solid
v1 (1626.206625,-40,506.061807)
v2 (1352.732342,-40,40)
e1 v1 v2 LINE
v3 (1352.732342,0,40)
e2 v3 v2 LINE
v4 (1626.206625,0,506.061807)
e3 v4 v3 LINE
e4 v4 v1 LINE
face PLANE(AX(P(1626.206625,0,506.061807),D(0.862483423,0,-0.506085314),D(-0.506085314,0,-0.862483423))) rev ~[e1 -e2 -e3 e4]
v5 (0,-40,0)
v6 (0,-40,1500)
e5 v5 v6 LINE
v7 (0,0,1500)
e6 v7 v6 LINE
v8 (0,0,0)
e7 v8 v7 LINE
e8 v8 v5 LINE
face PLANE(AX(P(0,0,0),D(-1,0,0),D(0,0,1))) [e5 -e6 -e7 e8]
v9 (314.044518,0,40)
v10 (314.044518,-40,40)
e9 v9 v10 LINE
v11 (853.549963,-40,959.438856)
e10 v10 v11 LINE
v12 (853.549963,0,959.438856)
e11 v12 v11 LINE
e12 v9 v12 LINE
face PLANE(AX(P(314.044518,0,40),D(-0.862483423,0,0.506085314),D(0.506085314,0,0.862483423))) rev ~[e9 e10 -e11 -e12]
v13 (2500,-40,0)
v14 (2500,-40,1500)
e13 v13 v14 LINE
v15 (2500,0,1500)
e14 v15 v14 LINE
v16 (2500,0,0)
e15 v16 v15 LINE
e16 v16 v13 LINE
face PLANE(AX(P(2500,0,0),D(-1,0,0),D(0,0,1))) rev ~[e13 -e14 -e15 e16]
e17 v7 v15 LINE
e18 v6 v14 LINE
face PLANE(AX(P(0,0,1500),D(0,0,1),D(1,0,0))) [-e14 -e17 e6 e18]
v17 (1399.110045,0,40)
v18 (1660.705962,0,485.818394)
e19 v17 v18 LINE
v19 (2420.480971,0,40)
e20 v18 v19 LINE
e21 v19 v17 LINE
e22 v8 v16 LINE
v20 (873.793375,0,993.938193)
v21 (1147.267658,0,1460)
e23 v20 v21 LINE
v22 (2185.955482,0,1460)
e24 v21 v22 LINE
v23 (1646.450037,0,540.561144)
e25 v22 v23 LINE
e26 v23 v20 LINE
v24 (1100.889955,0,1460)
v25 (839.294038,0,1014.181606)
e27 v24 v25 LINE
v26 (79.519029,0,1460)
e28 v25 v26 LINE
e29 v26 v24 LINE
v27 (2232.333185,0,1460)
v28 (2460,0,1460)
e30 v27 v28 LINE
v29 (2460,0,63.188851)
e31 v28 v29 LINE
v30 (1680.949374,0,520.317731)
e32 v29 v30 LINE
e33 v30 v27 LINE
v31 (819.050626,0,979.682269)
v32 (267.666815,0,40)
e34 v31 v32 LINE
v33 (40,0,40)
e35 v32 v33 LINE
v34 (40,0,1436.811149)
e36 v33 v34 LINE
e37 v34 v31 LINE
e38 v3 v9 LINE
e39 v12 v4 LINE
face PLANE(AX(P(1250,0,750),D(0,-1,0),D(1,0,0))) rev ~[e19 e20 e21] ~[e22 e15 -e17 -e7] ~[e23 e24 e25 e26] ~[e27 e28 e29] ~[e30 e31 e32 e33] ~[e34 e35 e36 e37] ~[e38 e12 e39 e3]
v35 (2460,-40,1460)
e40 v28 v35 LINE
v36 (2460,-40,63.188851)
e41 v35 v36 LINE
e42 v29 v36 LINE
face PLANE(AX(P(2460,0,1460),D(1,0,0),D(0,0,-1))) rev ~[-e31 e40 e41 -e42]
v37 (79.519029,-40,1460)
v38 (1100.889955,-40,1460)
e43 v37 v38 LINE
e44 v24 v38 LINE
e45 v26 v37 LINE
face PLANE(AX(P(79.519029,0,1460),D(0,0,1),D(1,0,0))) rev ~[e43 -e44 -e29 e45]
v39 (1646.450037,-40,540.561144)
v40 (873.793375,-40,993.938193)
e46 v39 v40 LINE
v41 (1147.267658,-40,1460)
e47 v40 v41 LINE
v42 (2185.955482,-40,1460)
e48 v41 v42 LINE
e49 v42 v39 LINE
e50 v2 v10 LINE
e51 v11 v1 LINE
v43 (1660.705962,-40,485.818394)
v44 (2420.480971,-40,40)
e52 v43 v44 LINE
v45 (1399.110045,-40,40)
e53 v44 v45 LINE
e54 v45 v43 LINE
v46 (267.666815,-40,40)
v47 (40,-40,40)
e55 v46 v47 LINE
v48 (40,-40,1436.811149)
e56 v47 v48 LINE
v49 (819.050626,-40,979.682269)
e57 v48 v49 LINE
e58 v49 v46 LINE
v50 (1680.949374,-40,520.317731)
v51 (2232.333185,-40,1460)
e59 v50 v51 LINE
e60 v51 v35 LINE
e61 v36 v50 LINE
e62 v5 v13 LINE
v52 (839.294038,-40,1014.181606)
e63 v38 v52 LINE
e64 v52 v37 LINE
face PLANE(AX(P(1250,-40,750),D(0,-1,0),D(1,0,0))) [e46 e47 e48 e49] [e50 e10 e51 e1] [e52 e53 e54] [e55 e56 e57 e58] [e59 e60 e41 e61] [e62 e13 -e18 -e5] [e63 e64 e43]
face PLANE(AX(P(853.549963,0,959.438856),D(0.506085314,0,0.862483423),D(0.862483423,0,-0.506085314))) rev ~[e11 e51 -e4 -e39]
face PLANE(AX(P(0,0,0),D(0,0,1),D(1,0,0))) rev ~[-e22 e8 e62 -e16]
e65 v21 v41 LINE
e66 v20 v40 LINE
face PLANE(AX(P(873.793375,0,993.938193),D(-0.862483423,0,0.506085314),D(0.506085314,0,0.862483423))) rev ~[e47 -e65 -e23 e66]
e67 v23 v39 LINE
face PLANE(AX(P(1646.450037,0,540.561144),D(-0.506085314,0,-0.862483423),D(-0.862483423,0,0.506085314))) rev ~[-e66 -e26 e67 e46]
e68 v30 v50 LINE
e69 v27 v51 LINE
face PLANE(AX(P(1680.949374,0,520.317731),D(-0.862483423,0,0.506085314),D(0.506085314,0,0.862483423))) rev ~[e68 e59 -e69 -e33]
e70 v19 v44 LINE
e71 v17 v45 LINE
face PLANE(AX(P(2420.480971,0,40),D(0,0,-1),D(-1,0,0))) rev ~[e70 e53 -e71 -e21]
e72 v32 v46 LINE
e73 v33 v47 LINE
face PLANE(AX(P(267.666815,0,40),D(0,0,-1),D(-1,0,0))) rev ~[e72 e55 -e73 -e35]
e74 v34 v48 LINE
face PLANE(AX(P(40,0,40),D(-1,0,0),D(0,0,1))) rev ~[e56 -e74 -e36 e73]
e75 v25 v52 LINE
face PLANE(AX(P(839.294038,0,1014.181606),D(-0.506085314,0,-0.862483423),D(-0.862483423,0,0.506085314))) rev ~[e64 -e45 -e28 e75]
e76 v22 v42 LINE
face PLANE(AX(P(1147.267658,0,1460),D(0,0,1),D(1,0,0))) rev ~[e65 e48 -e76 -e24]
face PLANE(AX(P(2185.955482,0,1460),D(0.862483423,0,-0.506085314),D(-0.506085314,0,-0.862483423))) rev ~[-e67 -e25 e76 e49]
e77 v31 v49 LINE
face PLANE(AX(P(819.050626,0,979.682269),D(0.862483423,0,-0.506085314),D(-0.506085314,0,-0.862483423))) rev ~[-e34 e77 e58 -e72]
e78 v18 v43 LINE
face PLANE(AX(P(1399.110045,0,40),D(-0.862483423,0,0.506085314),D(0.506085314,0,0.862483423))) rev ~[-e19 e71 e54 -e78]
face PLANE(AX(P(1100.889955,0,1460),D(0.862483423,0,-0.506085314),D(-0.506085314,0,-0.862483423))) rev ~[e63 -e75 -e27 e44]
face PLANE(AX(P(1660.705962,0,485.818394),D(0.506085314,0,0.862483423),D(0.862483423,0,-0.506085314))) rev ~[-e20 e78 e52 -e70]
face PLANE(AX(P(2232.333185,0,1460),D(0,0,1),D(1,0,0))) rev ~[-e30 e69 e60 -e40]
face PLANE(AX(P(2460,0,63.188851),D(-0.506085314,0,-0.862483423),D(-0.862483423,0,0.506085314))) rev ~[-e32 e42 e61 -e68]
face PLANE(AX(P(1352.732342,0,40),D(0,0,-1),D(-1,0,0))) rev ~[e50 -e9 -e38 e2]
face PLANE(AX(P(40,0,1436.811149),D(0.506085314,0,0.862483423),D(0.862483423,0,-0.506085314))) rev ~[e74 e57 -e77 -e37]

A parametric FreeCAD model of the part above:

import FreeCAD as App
import Part
import Sketcher
from FreeCAD import Vector

doc = App.newDocument("Part")
params = doc.addObject("Spreadsheet::Sheet", "Params")
for row, (alias, value) in enumerate([
    ("sketch1_width", "2500 mm"),
    ("sketch1_height", "1500 mm"),
    ("pad1_length", "40 mm"),
], start=1):
    params.set(f"A{row}", alias)
    params.set(f"B{row}", "=" + value)
    params.setAlias(f"B{row}", alias)

body = doc.addObject("PartDesign::Body", "Body")

# Sketch on XZ plane
sketch1 = doc.addObject("Sketcher::SketchObject", "Sketch")
body.addObject(sketch1)
sketch1.AttachmentSupport = (doc.XZ_Plane, [""])
sketch1.MapMode = "FlatFace"
sketch1.addGeometry(Part.LineSegment(Vector(0, 1500, 0), Vector(0, 0, 0)), False)
sketch1.addGeometry(Part.LineSegment(Vector(0, 0, 0), Vector(2500, 0, 0)), False)
sketch1.addGeometry(Part.LineSegment(Vector(2500, 0, 0), Vector(2500, 1500, 0)), False)
sketch1.addGeometry(Part.LineSegment(Vector(2500, 1500, 0), Vector(0, 1500, 0)), False)
sketch1.addGeometry(Part.LineSegment(Vector(40, 1436.811149, 0), Vector(819.050626, 979.682269, 0)), False)
sketch1.addGeometry(Part.LineSegment(Vector(819.050626, 979.682269, 0), Vector(267.666815, 40, 0)), False)
sketch1.addGeometry(Part.LineSegment(Vector(267.666815, 40, 0), Vector(40, 40, 0)), False)
sketch1.addGeometry(Part.LineSegment(Vector(40, 40, 0), Vector(40, 1436.811149, 0)), False)
sketch1.addGeometry(Part.LineSegment(Vector(853.549963, 959.438856, 0), Vector(1626.206625, 506.061807, 0)), False)
sketch1.addGeometry(Part.LineSegment(Vector(1626.206625, 506.061807, 0), Vector(1352.732342, 40, 0)), False)
sketch1.addGeometry(Part.LineSegment(Vector(1352.732342, 40, 0), Vector(314.044518, 40, 0)), False)
sketch1.addGeometry(Part.LineSegment(Vector(314.044518, 40, 0), Vector(853.549963, 959.438856, 0)), False)
sketch1.addGeometry(Part.LineSegment(Vector(1660.705962, 485.818394, 0), Vector(2420.480971, 40, 0)), False)
sketch1.addGeometry(Part.LineSegment(Vector(2420.480971, 40, 0), Vector(1399.110045, 40, 0)), False)
sketch1.addGeometry(Part.LineSegment(Vector(1399.110045, 40, 0), Vector(1660.705962, 485.818394, 0)), False)
sketch1.addGeometry(Part.LineSegment(Vector(839.294038, 1014.181606, 0), Vector(79.519029, 1460, 0)), False)
sketch1.addGeometry(Part.LineSegment(Vector(79.519029, 1460, 0), Vector(1100.889955, 1460, 0)), False)
sketch1.addGeometry(Part.LineSegment(Vector(1100.889955, 1460, 0), Vector(839.294038, 1014.181606, 0)), False)
sketch1.addGeometry(Part.LineSegment(Vector(2185.955482, 1460, 0), Vector(1646.450037, 540.561144, 0)), False)
sketch1.addGeometry(Part.LineSegment(Vector(1646.450037, 540.561144, 0), Vector(873.793375, 993.938193, 0)), False)
sketch1.addGeometry(Part.LineSegment(Vector(873.793375, 993.938193, 0), Vector(1147.267658, 1460, 0)), False)
sketch1.addGeometry(Part.LineSegment(Vector(1147.267658, 1460, 0), Vector(2185.955482, 1460, 0)), False)
sketch1.addGeometry(Part.LineSegment(Vector(2460, 63.188851, 0), Vector(1680.949374, 520.317731, 0)), False)
sketch1.addGeometry(Part.LineSegment(Vector(1680.949374, 520.317731, 0), Vector(2232.333185, 1460, 0)), False)
sketch1.addGeometry(Part.LineSegment(Vector(2232.333185, 1460, 0), Vector(2460, 1460, 0)), False)
sketch1.addGeometry(Part.LineSegment(Vector(2460, 1460, 0), Vector(2460, 63.188851, 0)), False)
sketch1.addConstraint(Sketcher.Constraint("Coincident", 0, 2, 1, 1))
sketch1.addConstraint(Sketcher.Constraint("Coincident", 1, 2, 2, 1))
sketch1.addConstraint(Sketcher.Constraint("Coincident", 2, 2, 3, 1))
sketch1.addConstraint(Sketcher.Constraint("Coincident", 3, 2, 0, 1))
sketch1.addConstraint(Sketcher.Constraint("Coincident", 4, 2, 5, 1))
sketch1.addConstraint(Sketcher.Constraint("Coincident", 5, 2, 6, 1))
sketch1.addConstraint(Sketcher.Constraint("Coincident", 6, 2, 7, 1))
sketch1.addConstraint(Sketcher.Constraint("Coincident", 7, 2, 4, 1))
sketch1.addConstraint(Sketcher.Constraint("Coincident", 8, 2, 9, 1))
sketch1.addConstraint(Sketcher.Constraint("Coincident", 9, 2, 10, 1))
sketch1.addConstraint(Sketcher.Constraint("Coincident", 10, 2, 11, 1))
sketch1.addConstraint(Sketcher.Constraint("Coincident", 11, 2, 8, 1))
sketch1.addConstraint(Sketcher.Constraint("Coincident", 12, 2, 13, 1))
sketch1.addConstraint(Sketcher.Constraint("Coincident", 13, 2, 14, 1))
sketch1.addConstraint(Sketcher.Constraint("Coincident", 14, 2, 12, 1))
sketch1.addConstraint(Sketcher.Constraint("Coincident", 15, 2, 16, 1))
sketch1.addConstraint(Sketcher.Constraint("Coincident", 16, 2, 17, 1))
sketch1.addConstraint(Sketcher.Constraint("Coincident", 17, 2, 15, 1))
sketch1.addConstraint(Sketcher.Constraint("Coincident", 18, 2, 19, 1))
sketch1.addConstraint(Sketcher.Constraint("Coincident", 19, 2, 20, 1))
sketch1.addConstraint(Sketcher.Constraint("Coincident", 20, 2, 21, 1))
sketch1.addConstraint(Sketcher.Constraint("Coincident", 21, 2, 18, 1))
sketch1.addConstraint(Sketcher.Constraint("Coincident", 22, 2, 23, 1))
sketch1.addConstraint(Sketcher.Constraint("Coincident", 23, 2, 24, 1))
sketch1.addConstraint(Sketcher.Constraint("Coincident", 24, 2, 25, 1))
sketch1.addConstraint(Sketcher.Constraint("Coincident", 25, 2, 22, 1))
sketch1.addConstraint(Sketcher.Constraint("Vertical", 0))
sketch1.addConstraint(Sketcher.Constraint("Horizontal", 1))
sketch1.addConstraint(Sketcher.Constraint("Vertical", 2))
sketch1.addConstraint(Sketcher.Constraint("Horizontal", 3))
sketch1.addConstraint(Sketcher.Constraint("Horizontal", 6))
sketch1.addConstraint(Sketcher.Constraint("Vertical", 7))
sketch1.addConstraint(Sketcher.Constraint("Horizontal", 10))
sketch1.addConstraint(Sketcher.Constraint("Horizontal", 13))
sketch1.addConstraint(Sketcher.Constraint("Horizontal", 16))
sketch1.addConstraint(Sketcher.Constraint("Horizontal", 21))
sketch1.addConstraint(Sketcher.Constraint("Horizontal", 24))
sketch1.addConstraint(Sketcher.Constraint("Vertical", 25))
sketch1.addConstraint(Sketcher.Constraint("Coincident", 0, 2, -1, 1))
sketch1.addConstraint(Sketcher.Constraint("Perpendicular", 4, 5))
sketch1.addConstraint(Sketcher.Constraint("Perpendicular", 5, 8))
sketch1.addConstraint(Sketcher.Constraint("Perpendicular", 8, 9))
sketch1.addConstraint(Sketcher.Constraint("Parallel", 9, 11))
sketch1.addConstraint(Sketcher.Constraint("Perpendicular", 11, 12))
sketch1.addConstraint(Sketcher.Constraint("Perpendicular", 12, 14))
sketch1.addConstraint(Sketcher.Constraint("Perpendicular", 14, 15))
sketch1.addConstraint(Sketcher.Constraint("Perpendicular", 15, 17))
sketch1.addConstraint(Sketcher.Constraint("Parallel", 17, 18))
sketch1.addConstraint(Sketcher.Constraint("Perpendicular", 18, 19))
sketch1.addConstraint(Sketcher.Constraint("Perpendicular", 19, 20))
sketch1.addConstraint(Sketcher.Constraint("Perpendicular", 20, 22))
sketch1.addConstraint(Sketcher.Constraint("Perpendicular", 22, 23))
sketch1.addConstraint(Sketcher.Constraint("Horizontal", 6, 2, 9, 2))
sketch1.addConstraint(Sketcher.Constraint("Horizontal", 10, 2, 12, 2))
sketch1.addConstraint(Sketcher.Constraint("Horizontal", 16, 2, 20, 2))
sketch1.addConstraint(Sketcher.Constraint("Horizontal", 21, 2, 23, 2))
sketch1.addConstraint(Sketcher.Constraint("Equal", 13, 16))
sketch1.addConstraint(Sketcher.Constraint("Equal", 10, 21))
sketch1.addConstraint(Sketcher.Constraint("Equal", 6, 24))
sketch1.addConstraint(Sketcher.Constraint("Equal", 7, 25))
sketch1.addConstraint(Sketcher.Constraint("Equal", 11, 18))
sketch1.addConstraint(Sketcher.Constraint("DistanceX", 1, 1, 1, 2, 2500.0))
sketch1.addConstraint(Sketcher.Constraint("DistanceY", 0, 2, 0, 1, 1500.0))
sketch1.addConstraint(Sketcher.Constraint("DistanceY", -1, 1, 5, 2, 40.0))
sketch1.addConstraint(Sketcher.Constraint("DistanceX", -1, 1, 6, 2, 40.0))
sketch1.addConstraint(Sketcher.Constraint("DistanceY", -1, 1, 15, 2, 1460.0))
sketch1.addConstraint(Sketcher.Constraint("DistanceX", -1, 1, 24, 2, 2460.0))
sketch1.addConstraint(Sketcher.Constraint("DistanceX", 4, 2, 8, 2, 807.155999))
sketch1.addConstraint(Sketcher.Constraint("DistanceX", 11, 2, 14, 2, 807.155999))
sketch1.addConstraint(Sketcher.Constraint("Distance", 9, 540.371901))
sketch1.addConstraint(Sketcher.Constraint("DistanceY", 7, 1, 7, 2, 1396.811149))
sketch1.addConstraint(Sketcher.Constraint("Distance", 5, 1089.507629))
sketch1.addConstraint(Sketcher.Constraint("Distance", 8, 895.85103))
sketch1.addConstraint(Sketcher.Constraint("DistanceX", 6, 2, 6, 1, 227.666815))
sketch1.addConstraint(Sketcher.Constraint("DistanceX", 13, 2, 13, 1, 1021.370927))
sketch1.addConstraint(Sketcher.Constraint("DistanceX", -1, 1, 15, 2, 79.519029))
sketch1.addConstraint(Sketcher.Constraint("DistanceX", -1, 1, 20, 2, 1147.267658))
sketch1.setExpression("Constraints[61]", "Params.sketch1_width")
sketch1.setExpression("Constraints[62]", "Params.sketch1_height")
pad1 = doc.addObject("PartDesign::Pad", "Pad")
body.addObject(pad1)
pad1.Profile = sketch1
pad1.setExpression("Length", "Params.pad1_length")

doc.recompute()
